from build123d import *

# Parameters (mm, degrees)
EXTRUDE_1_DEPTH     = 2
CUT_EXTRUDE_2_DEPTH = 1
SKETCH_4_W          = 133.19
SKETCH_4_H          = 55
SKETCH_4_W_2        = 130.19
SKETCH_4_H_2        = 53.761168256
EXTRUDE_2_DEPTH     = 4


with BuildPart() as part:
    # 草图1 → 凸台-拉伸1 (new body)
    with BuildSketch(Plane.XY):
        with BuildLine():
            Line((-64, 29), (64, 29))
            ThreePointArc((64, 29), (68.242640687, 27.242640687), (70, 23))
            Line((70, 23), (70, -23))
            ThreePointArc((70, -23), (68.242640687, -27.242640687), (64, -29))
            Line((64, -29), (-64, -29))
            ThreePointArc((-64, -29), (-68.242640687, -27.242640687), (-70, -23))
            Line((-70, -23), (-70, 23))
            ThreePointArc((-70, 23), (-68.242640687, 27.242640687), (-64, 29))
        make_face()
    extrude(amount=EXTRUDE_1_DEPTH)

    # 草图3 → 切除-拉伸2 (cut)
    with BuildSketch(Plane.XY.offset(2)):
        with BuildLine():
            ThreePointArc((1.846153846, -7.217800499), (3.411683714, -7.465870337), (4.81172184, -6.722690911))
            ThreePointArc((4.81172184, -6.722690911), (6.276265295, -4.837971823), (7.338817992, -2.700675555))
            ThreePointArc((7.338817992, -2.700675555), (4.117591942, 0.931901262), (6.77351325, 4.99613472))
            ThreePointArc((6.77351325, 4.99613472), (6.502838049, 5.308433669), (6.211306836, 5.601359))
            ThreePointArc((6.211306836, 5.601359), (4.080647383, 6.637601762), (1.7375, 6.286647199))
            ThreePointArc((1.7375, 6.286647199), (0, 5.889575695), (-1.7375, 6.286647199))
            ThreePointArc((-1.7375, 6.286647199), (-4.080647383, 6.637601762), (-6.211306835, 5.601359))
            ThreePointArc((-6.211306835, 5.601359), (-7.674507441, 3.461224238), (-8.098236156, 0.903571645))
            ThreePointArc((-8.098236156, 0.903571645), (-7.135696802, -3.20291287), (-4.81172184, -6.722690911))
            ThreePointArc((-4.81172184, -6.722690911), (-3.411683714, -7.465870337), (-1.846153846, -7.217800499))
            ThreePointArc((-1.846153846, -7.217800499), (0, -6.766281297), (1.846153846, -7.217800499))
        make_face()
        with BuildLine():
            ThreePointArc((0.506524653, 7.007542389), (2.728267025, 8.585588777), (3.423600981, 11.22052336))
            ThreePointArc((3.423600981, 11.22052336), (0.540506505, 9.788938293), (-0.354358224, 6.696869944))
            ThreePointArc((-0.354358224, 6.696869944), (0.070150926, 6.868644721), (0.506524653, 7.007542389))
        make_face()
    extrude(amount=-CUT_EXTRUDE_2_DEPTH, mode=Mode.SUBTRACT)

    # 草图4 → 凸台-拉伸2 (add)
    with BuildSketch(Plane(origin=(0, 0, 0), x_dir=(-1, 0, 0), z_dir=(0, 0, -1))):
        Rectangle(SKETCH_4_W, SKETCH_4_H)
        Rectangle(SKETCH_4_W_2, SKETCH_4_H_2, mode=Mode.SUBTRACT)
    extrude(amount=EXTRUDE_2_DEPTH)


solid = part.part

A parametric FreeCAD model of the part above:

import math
import FreeCAD as App
import Part
import Sketcher

V = App.Vector


def add_polygon(sketch, points):
    """Adds a closed chain of lines whose ends are joined by coincident constraints."""
    first, n = sketch.GeometryCount, len(points)
    for a, b in zip(points, points[1:] + points[:1]):
        sketch.addGeometry(Part.LineSegment(App.Vector(*a, 0), App.Vector(*b, 0)), False)
    for i in range(n):
        sketch.addConstraint(Sketcher.Constraint("Coincident", first + i, 2, first + (i + 1) % n, 1))

doc = App.newDocument("Part")
params = doc.addObject("Spreadsheet::Sheet", "Params")
for row, (alias, value) in enumerate([
    ("sketch1_radius", "6 mm"),
    ("sketch1_width", "128 mm"),
    ("sketch1_height", "46 mm"),
    ("pad1_length", "2 mm"),
    ("sketch2_radius", "12 mm"),
    ("sketch2_radius2", "4 mm"),
    ("sketch2_radius3", "6 mm"),
    ("sketch2_radius4", "2.5 mm"),
    ("pocket1_length", "1 mm"),
    ("sketch3_height", "55 mm"),
    ("sketch3_width", "133.19 mm"),
    ("sketch3_width2", "130.19 mm"),
    ("pad2_length", "4 mm"),
], start=1):
    params.set(f"A{row}", alias)
    params.set(f"B{row}", "=" + value)
    params.setAlias(f"B{row}", alias)

body = doc.addObject("PartDesign::Body", "Body")

sketch1 = doc.addObject("Sketcher::SketchObject", "Sketch")
body.addObject(sketch1)
sketch1.AttachmentSupport = (doc.XY_Plane, [""])
sketch1.MapMode = "FlatFace"
sketch1.addGeometry(Part.LineSegment(V(64, 29, 0), V(-64, 29, 0)), False)
sketch1.addGeometry(Part.ArcOfCircle(Part.Circle(V(-64, 23, 0), V(0, 0, 1), 6), math.radians(90), math.radians(180)), False)
sketch1.addGeometry(Part.LineSegment(V(-70, 23, 0), V(-70, -23, 0)), False)
sketch1.addGeometry(Part.ArcOfCircle(Part.Circle(V(-64, -23, 0), V(0, 0, 1), 6), math.radians(180), math.radians(270)), False)
sketch1.addGeometry(Part.LineSegment(V(-64, -29, 0), V(64, -29, 0)), False)
sketch1.addGeometry(Part.ArcOfCircle(Part.Circle(V(64, -23, 0), V(0, 0, 1), 6), math.radians(-90), math.radians(0)), False)
sketch1.addGeometry(Part.LineSegment(V(70, -23, 0), V(70, 23, 0)), False)
sketch1.addGeometry(Part.ArcOfCircle(Part.Circle(V(64, 23, 0), V(0, 0, 1), 6), math.radians(0), math.radians(90)), False)
sketch1.addConstraint(Sketcher.Constraint("Tangent", 0, 2, 1, 1))
sketch1.addConstraint(Sketcher.Constraint("Tangent", 1, 2, 2, 1))
sketch1.addConstraint(Sketcher.Constraint("Tangent", 2, 2, 3, 1))
sketch1.addConstraint(Sketcher.Constraint("Tangent", 3, 2, 4, 1))
sketch1.addConstraint(Sketcher.Constraint("Tangent", 4, 2, 5, 1))
sketch1.addConstraint(Sketcher.Constraint("Tangent", 5, 2, 6, 1))
sketch1.addConstraint(Sketcher.Constraint("Tangent", 6, 2, 7, 1))
sketch1.addConstraint(Sketcher.Constraint("Tangent", 7, 2, 0, 1))
sketch1.addConstraint(Sketcher.Constraint("Horizontal", 0))
sketch1.addConstraint(Sketcher.Constraint("Vertical", 2))
sketch1.addConstraint(Sketcher.Constraint("Horizontal", 4))
sketch1.addConstraint(Sketcher.Constraint("Vertical", 6))
sketch1.addConstraint(Sketcher.Constraint("Equal", 1, 3))
sketch1.addConstraint(Sketcher.Constraint("Equal", 3, 5))
sketch1.addConstraint(Sketcher.Constraint("Equal", 5, 7))
sketch1.addConstraint(Sketcher.Constraint("Symmetric", 1, 3, 5, 3, -1, 1))
sketch1.addConstraint(Sketcher.Constraint("Radius", 1, 6.0))
sketch1.addConstraint(Sketcher.Constraint("DistanceX", 0, 2, 0, 1, 128.0))
sketch1.addConstraint(Sketcher.Constraint("DistanceY", 2, 2, 2, 1, 46.0))
sketch1.setExpression("Constraints[16]", "Params.sketch1_radius")
sketch1.setExpression("Constraints[17]", "Params.sketch1_width")
sketch1.setExpression("Constraints[18]", "Params.sketch1_height")
pad1 = doc.addObject("PartDesign::Pad", "Pad")
body.addObject(pad1)
pad1.Profile = sketch1
pad1.setExpression("Length", "Params.pad1_length")

sketch2 = doc.addObject("Sketcher::SketchObject", "Sketch001")
body.addObject(sketch2)
sketch2.AttachmentSupport = (doc.XY_Plane, [""])
sketch2.MapMode = "FlatFace"
sketch2.AttachmentOffset = App.Placement(V(0, 0, 2), App.Rotation())
sketch2.addGeometry(Part.ArcOfCircle(Part.Circle(V(3, -5, 0), V(0, 0, 1), 2.5), math.radians(-117), math.radians(-44)), False)
sketch2.addGeometry(Part.ArcOfCircle(Part.Circle(V(-3.9, 1.5, 0), V(0, 0, 1), 12), math.radians(-44), math.radians(-21)), False)
sketch2.addGeometry(Part.ArcOfCircle(Part.Circle(V(8.1, 1.2, 0), V(0, 0, 1), 4), math.radians(109), math.radians(259)), False)
sketch2.addGeometry(Part.ArcOfCircle(Part.Circle(V(2.1, 1.2, 0), V(0, 0, 1), 6), math.radians(38.94), math.radians(46.84)), False)
sketch2.addGeometry(Part.ArcOfCircle(Part.Circle(V(3.5, 2.7, 0), V(0, 0, 1), 4), math.radians(47), math.radians(116)), False)
sketch2.addGeometry(Part.ArcOfCircle(Part.Circle(V(0, 9.9, 0), V(0, 0, 1), 4), math.radians(-116), math.radians(-64)), False)
sketch2.addGeometry(Part.ArcOfCircle(Part.Circle(V(-3.5, 2.7, 0), V(0, 0, 1), 4), math.radians(64), math.radians(133)), False)
sketch2.addGeometry(Part.ArcOfCircle(Part.Circle(V(-2.1, 1.2, 0), V(0, 0, 1), 6), math.radians(133), math.radians(183)), False)
sketch2.addGeometry(Part.ArcOfCircle(Part.Circle(V(3.9, 1.5, 0), V(0, 0, 1), 12), math.radians(-177), math.radians(-136)), False)
sketch2.addGeometry(Part.ArcOfCircle(Part.Circle(V(-3, -5, 0), V(0, 0, 1), 2.5), math.radians(-136), math.radians(-63)), False)
sketch2.addGeometry(Part.ArcOfCircle(Part.Circle(V(0, -10.8, 0), V(0, 0, 1), 4), math.radians(63), math.radians(117)), False)
sketch2.addGeometry(Part.ArcOfCircle(Part.Circle(V(-0.6, 10.9, 0), V(0, 0, 1), 4), math.radians(-75), math.radians(5)), False)
sketch2.addGeometry(Part.ArcOfCircle(Part.Circle(V(3.6, 7.2, 0), V(0, 0, 1), 4), math.radians(93), math.radians(188)), False)
sketch2.addGeometry(Part.ArcOfCircle(Part.Circle(V(2.1, 1.2, 0), V(0, 0, 1), 6), math.radians(105.47), math.radians(114.22)), False)
sketch2.addConstraint(Sketcher.Constraint("Tangent", 0, 2, 1, 1))
sketch2.addConstraint(Sketcher.Constraint("Coincident", 1, 2, 2, 2))
sketch2.addConstraint(Sketcher.Constraint("Coincident", 2, 1, 3, 1))
sketch2.addConstraint(Sketcher.Constraint("Tangent", 3, 2, 4, 1))
sketch2.addConstraint(Sketcher.Constraint("Tangent", 4, 2, 5, 2))
sketch2.addConstraint(Sketcher.Constraint("Tangent", 5, 1, 6, 1))
sketch2.addConstraint(Sketcher.Constraint("Tangent", 6, 2, 7, 1))
sketch2.addConstraint(Sketcher.Constraint("Tangent", 7, 2, 8, 1))
sketch2.addConstraint(Sketcher.Constraint("Tangent", 8, 2, 9, 1))
sketch2.addConstraint(Sketcher.Constraint("Tangent", 9, 2, 10, 2))
sketch2.addConstraint(Sketcher.Constraint("Tangent", 10, 1, 0, 1))
sketch2.addConstraint(Sketcher.Constraint("Coincident", 11, 2, 12, 1))
sketch2.addConstraint(Sketcher.Constraint("Coincident", 12, 2, 13, 2))
sketch2.addConstraint(Sketcher.Constraint("Tangent", 13, 1, 11, 1))
sketch2.addConstraint(Sketcher.Constraint("Coincident", 13, 3, 3, 3))
sketch2.addConstraint(Sketcher.Constraint("Equal", 2, 4))
sketch2.addConstraint(Sketcher.Constraint("Equal", 4, 5))
sketch2.addConstraint(Sketcher.Constraint("Equal", 5, 6))
sketch2.addConstraint(Sketcher.Constraint("Equal", 3, 7))
sketch2.addConstraint(Sketcher.Constraint("Equal", 1, 8))
sketch2.addConstraint(Sketcher.Constraint("Equal", 0, 9))
sketch2.addConstraint(Sketcher.Constraint("Equal", 6, 10))
sketch2.addConstraint(Sketcher.Constraint("Equal", 10, 11))
sketch2.addConstraint(Sketcher.Constraint("Equal", 11, 12))
sketch2.addConstraint(Sketcher.Constraint("Equal", 7, 13))
sketch2.addConstraint(Sketcher.Constraint("Symmetric", 4, 3, 6, 3, -2))
sketch2.addConstraint(Sketcher.Constraint("Symmetric", 1, 3, 8, 3, -2))
sketch2.addConstraint(Sketcher.Constraint("PointOnObject", 10, 3, -2))
sketch2.addConstraint(Sketcher.Constraint("Horizontal", 2, 3, 3, 3))
sketch2.addConstraint(Sketcher.Constraint("Horizontal", 3, 3, 7, 3))
sketch2.addConstraint(Sketcher.Constraint("Radius", 1, 12.0))
sketch2.addConstraint(Sketcher.Constraint("Radius", 2, 4.0))
sketch2.addConstraint(Sketcher.Constraint("Radius", 3, 6.0))
sketch2.addConstraint(Sketcher.Constraint("Radius", 0, 2.5))
sketch2.addConstraint(Sketcher.Constraint("DistanceX", -1, 1, 0, 3, 3.0))
sketch2.addConstraint(Sketcher.Constraint("DistanceY", 0, 3, -1, 1, 5.0))
sketch2.addConstraint(Sketcher.Constraint("DistanceX", 3, 3, 2, 3, 6.0))
sketch2.addConstraint(Sketcher.Constraint("DistanceY", 3, 3, 12, 3, 6.0))
sketch2.addConstraint(Sketcher.Constraint("DistanceX", 6, 3, 4, 3, 6.95))
sketch2.addConstraint(Sketcher.Constraint("DistanceX", 11, 3, 12, 2, 0.205998))
sketch2.addConstraint(Sketcher.Constraint("DistanceY", -1, 1, 2, 3, 1.224899))
sketch2.addConstraint(Sketcher.Constraint("DistanceX", -1, 1, 11, 2, 3.423601))
sketch2.addConstraint(Sketcher.Constraint("DistanceY", 1, 2, 8, 3, 4.246901))
sketch2.setExpression("Constraints[30]", "Params.sketch2_radius")
sketch2.setExpression("Constraints[31]", "Params.sketch2_radius2")
sketch2.setExpression("Constraints[32]", "Params.sketch2_radius3")
sketch2.setExpression("Constraints[33]", "Params.sketch2_radius4")
pocket1 = doc.addObject("PartDesign::Pocket", "Pocket")
body.addObject(pocket1)
pocket1.Profile = sketch2
pocket1.setExpression("Length", "Params.pocket1_length")

sketch3 = doc.addObject("Sketcher::SketchObject", "Sketch002")
body.addObject(sketch3)
sketch3.AttachmentSupport = (doc.XY_Plane, [""])
sketch3.MapMode = "FlatFace"
add_polygon(sketch3, [(67, 28), (67, -28), (-67, -28), (-67, 28)])
add_polygon(sketch3, [(-65, -27), (65, -27), (65, 27), (-65, 27)])
sketch3.addConstraint(Sketcher.Constraint("Vertical", 0))
sketch3.addConstraint(Sketcher.Constraint("Horizontal", 1))
sketch3.addConstraint(Sketcher.Constraint("Vertical", 2))
sketch3.addConstraint(Sketcher.Constraint("Horizontal", 3))
sketch3.addConstraint(Sketcher.Constraint("Horizontal", 4))
sketch3.addConstraint(Sketcher.Constraint("Vertical", 5))
sketch3.addConstraint(Sketcher.Constraint("Horizontal", 6))
sketch3.addConstraint(Sketcher.Constraint("Vertical", 7))
sketch3.addConstraint(Sketcher.Constraint("Symmetric", 0, 2, 2, 2, -1, 1))
sketch3.addConstraint(Sketcher.Constraint("Symmetric", 4, 2, 6, 2, -1, 1))
sketch3.addConstraint(Sketcher.Constraint("DistanceY", 0, 2, 0, 1, 55.0))
sketch3.addConstraint(Sketcher.Constraint("DistanceX", 1, 2, 1, 1, 133.19))
sketch3.addConstraint(Sketcher.Constraint("DistanceX", 4, 1, 4, 2, 130.19))
sketch3.addConstraint(Sketcher.Constraint("DistanceY", 5, 1, 5, 2, 53.761168))
sketch3.setExpression("Constraints[18]", "Params.sketch3_height")
sketch3.setExpression("Constraints[19]", "Params.sketch3_width")
sketch3.setExpression("Constraints[20]", "Params.sketch3_width2")
pad2 = doc.addObject("PartDesign::Pad", "Pad001")
body.addObject(pad2)
pad2.Profile = sketch3
pad2.setExpression("Length", "Params.pad2_length")
pad2.Reversed = True

doc.recompute()
